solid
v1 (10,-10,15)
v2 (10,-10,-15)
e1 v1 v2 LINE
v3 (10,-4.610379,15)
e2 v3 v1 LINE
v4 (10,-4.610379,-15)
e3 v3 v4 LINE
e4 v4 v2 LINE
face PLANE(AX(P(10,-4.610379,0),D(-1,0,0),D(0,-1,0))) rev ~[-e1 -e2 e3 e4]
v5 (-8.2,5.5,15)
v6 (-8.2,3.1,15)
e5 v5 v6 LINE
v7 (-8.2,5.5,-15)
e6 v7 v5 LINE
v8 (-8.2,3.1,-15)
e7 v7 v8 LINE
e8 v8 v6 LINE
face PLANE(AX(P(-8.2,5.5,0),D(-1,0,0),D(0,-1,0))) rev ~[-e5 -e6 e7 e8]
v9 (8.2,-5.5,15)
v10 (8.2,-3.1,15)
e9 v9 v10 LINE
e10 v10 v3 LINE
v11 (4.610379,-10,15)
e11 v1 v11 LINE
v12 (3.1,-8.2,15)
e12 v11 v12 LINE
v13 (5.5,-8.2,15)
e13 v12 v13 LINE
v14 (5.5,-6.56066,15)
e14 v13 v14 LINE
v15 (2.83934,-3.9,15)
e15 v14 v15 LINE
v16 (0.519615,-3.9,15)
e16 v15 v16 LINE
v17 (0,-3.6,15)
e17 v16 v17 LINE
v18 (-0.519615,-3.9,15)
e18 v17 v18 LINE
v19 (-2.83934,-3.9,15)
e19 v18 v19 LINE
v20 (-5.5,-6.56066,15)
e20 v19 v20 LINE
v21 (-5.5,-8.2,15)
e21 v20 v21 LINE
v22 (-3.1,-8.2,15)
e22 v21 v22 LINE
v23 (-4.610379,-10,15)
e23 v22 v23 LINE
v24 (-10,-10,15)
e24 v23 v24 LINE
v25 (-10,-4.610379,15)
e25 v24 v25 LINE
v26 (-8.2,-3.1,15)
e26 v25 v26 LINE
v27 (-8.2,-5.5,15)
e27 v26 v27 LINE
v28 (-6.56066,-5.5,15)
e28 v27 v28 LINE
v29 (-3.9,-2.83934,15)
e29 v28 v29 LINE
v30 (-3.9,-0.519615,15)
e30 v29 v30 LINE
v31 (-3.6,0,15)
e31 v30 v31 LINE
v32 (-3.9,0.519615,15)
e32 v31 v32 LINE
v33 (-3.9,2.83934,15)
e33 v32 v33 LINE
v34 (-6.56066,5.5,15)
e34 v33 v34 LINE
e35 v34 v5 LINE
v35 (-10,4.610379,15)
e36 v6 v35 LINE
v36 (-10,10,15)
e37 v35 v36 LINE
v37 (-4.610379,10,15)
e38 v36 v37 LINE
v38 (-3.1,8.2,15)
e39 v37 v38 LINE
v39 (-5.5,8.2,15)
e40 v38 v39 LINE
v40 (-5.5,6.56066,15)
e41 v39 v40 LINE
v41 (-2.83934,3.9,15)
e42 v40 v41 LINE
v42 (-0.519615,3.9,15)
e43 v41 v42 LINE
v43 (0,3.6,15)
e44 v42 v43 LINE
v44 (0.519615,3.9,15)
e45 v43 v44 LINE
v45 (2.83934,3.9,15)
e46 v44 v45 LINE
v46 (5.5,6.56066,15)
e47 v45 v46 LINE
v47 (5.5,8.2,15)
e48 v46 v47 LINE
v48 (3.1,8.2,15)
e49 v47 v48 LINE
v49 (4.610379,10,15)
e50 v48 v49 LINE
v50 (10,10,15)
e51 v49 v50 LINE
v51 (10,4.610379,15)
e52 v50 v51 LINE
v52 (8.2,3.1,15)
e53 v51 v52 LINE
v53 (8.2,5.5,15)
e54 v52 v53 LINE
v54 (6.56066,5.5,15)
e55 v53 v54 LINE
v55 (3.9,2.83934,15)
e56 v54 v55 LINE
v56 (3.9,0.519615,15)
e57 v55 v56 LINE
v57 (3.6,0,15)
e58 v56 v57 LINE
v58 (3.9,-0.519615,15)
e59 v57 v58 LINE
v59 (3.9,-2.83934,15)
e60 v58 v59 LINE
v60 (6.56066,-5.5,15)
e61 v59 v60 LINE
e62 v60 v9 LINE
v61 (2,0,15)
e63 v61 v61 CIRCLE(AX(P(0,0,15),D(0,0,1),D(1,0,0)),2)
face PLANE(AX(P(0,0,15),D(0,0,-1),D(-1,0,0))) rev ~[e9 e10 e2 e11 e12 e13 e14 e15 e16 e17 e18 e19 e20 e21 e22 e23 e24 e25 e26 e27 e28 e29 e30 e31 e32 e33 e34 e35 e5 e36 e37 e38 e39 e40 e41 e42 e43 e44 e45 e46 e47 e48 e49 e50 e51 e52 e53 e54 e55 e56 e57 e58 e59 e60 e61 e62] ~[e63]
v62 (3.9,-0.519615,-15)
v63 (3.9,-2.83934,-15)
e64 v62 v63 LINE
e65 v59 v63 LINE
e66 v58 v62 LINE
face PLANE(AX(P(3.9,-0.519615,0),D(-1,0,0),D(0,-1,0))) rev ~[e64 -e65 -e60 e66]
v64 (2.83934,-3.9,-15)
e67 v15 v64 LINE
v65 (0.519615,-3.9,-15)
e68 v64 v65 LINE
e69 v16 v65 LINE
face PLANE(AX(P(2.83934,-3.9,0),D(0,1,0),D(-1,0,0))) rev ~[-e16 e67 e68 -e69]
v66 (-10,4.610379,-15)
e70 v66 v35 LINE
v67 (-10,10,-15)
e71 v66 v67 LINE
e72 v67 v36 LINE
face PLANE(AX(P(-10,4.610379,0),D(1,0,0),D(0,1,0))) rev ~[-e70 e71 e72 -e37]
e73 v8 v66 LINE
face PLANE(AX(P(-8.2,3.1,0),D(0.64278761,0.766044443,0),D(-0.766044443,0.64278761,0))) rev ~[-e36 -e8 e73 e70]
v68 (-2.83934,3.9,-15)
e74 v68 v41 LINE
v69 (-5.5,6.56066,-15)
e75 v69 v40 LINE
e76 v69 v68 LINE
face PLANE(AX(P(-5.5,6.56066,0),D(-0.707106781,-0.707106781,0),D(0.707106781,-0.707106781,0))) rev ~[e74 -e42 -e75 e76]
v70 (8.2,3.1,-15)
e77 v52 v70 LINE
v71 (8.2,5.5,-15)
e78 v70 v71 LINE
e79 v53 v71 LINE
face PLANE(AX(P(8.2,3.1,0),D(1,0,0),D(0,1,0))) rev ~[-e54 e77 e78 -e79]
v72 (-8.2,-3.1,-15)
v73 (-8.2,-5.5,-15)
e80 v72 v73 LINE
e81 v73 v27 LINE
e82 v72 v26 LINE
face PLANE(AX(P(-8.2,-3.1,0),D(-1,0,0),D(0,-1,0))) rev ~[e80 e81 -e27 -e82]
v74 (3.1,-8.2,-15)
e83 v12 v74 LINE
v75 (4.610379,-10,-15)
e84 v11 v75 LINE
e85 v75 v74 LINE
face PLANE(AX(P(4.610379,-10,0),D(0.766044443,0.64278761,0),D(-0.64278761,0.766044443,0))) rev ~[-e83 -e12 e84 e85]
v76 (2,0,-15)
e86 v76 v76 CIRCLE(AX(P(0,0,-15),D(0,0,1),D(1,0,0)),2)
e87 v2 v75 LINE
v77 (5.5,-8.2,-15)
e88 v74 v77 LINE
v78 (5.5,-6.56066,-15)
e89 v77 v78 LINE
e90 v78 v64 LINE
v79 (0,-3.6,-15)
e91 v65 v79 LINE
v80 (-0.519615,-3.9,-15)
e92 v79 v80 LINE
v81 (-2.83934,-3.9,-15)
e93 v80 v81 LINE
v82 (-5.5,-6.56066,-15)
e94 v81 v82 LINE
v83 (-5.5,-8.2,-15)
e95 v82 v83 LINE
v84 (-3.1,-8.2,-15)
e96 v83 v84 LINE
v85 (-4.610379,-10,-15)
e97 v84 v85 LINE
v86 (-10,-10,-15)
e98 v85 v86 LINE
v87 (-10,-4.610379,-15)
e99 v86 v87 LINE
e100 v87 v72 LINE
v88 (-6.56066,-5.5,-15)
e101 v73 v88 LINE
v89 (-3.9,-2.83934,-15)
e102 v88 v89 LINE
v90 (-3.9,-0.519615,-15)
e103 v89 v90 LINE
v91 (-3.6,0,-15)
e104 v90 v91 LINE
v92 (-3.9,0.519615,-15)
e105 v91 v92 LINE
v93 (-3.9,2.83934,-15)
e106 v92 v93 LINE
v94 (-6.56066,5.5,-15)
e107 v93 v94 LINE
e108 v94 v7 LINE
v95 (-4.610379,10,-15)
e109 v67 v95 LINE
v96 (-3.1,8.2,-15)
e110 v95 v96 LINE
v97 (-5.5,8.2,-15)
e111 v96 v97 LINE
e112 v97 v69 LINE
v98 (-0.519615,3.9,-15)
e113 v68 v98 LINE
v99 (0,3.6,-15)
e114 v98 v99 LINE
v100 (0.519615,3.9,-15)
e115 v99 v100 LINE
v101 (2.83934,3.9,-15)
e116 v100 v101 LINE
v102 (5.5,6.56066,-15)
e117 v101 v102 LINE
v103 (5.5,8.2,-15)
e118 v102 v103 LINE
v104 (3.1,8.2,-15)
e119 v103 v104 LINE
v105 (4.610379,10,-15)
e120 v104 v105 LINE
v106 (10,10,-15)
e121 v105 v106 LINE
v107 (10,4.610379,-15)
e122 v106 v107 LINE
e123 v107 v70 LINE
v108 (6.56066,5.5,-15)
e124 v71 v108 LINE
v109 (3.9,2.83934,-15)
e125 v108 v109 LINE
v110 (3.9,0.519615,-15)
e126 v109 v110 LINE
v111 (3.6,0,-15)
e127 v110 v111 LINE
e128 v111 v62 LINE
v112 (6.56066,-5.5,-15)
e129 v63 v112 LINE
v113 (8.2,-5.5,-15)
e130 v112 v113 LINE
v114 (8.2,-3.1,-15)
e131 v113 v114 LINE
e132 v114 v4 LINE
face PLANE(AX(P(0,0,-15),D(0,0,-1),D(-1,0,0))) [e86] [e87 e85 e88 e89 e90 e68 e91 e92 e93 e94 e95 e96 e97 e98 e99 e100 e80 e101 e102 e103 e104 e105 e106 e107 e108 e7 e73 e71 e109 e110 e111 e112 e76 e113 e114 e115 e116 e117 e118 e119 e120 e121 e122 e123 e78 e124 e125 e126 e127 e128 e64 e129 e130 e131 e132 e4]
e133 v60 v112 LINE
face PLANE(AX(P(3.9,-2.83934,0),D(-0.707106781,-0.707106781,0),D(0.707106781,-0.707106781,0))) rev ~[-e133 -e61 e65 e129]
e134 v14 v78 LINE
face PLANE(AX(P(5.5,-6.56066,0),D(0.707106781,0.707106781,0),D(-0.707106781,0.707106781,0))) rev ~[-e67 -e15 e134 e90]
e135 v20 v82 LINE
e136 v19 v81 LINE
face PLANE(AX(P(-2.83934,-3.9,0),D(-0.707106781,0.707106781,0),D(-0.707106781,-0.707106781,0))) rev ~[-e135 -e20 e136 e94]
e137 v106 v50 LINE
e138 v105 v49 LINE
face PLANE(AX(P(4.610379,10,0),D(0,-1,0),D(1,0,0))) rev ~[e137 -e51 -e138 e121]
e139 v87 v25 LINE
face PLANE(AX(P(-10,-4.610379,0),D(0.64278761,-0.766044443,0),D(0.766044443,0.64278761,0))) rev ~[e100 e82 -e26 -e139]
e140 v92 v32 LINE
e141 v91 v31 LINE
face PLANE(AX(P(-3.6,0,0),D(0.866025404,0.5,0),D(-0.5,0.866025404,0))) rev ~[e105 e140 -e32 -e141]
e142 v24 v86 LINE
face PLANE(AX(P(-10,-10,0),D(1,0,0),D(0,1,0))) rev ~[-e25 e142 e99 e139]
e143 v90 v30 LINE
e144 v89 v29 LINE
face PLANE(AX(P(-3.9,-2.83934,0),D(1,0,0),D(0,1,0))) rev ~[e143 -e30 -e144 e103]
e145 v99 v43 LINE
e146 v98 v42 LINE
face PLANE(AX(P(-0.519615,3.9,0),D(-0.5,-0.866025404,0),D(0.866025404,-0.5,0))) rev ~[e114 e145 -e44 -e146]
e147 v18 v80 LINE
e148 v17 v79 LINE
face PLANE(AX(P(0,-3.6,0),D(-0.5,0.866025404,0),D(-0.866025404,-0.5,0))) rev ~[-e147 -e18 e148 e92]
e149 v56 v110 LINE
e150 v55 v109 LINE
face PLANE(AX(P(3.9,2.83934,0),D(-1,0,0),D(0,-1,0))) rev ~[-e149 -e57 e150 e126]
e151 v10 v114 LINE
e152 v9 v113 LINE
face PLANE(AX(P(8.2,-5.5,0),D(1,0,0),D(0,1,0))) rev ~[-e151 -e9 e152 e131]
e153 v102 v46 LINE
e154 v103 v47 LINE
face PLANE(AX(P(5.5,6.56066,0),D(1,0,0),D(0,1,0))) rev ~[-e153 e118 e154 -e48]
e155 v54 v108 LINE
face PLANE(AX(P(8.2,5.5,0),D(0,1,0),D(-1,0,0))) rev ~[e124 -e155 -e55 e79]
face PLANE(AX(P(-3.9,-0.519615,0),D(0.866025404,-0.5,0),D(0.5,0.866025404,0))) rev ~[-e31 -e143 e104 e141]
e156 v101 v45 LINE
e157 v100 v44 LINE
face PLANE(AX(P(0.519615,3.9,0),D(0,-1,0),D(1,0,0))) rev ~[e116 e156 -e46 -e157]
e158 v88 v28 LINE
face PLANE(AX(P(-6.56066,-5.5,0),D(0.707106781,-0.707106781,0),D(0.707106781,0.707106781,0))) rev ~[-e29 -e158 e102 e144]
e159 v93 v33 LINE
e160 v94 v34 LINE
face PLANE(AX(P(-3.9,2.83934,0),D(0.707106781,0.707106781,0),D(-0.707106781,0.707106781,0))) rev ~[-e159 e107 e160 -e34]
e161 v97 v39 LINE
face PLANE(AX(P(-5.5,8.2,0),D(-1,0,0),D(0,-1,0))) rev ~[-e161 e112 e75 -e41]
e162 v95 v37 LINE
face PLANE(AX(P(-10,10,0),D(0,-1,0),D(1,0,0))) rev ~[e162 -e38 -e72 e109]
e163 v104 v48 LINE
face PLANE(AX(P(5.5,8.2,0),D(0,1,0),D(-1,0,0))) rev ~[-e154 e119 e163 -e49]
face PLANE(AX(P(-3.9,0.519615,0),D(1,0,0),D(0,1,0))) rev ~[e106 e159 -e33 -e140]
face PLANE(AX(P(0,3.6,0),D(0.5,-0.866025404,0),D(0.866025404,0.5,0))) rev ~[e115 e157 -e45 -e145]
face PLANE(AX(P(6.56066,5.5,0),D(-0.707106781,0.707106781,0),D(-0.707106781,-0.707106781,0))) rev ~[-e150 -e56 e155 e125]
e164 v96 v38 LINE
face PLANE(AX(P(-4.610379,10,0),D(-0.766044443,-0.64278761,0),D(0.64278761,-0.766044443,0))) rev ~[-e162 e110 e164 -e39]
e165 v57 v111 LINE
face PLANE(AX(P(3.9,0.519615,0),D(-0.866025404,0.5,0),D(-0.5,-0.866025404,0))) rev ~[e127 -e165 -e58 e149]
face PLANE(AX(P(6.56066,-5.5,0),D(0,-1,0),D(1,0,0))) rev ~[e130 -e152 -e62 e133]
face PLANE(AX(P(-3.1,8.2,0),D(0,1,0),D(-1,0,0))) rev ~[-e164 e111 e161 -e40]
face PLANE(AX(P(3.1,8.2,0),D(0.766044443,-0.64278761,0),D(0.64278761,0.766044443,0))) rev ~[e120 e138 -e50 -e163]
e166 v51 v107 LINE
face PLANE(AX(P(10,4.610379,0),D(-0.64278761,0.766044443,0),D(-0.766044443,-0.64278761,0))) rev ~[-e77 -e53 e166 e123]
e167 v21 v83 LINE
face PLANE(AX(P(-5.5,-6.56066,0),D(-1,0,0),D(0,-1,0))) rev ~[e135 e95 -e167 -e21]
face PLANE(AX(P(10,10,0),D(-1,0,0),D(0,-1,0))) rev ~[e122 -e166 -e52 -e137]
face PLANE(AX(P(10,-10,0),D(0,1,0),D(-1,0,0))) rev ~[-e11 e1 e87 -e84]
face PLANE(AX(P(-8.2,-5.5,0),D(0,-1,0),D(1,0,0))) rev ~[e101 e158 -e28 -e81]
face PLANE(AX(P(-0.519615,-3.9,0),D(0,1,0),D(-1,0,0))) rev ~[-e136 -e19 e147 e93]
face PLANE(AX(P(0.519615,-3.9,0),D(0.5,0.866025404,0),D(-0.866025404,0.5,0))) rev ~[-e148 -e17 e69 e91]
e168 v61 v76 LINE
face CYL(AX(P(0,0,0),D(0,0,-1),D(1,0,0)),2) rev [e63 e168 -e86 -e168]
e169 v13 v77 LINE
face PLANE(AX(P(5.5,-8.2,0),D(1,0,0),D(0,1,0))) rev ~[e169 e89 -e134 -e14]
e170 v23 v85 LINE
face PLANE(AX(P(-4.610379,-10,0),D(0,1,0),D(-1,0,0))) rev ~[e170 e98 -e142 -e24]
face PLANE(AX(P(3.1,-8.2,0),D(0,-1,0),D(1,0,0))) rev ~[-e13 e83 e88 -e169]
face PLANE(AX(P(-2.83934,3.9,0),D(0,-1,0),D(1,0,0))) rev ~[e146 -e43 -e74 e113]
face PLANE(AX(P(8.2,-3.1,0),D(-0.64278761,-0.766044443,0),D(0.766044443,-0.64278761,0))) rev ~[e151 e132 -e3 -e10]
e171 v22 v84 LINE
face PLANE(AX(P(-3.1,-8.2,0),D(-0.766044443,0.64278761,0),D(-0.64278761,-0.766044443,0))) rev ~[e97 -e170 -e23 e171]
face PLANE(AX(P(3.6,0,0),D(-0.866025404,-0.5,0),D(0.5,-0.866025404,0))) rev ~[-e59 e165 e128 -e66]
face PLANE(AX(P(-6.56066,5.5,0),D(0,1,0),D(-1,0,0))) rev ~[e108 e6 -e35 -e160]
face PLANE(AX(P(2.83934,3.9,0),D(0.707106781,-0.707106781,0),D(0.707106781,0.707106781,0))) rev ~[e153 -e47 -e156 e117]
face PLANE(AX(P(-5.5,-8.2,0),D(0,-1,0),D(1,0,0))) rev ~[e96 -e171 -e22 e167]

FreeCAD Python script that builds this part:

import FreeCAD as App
import Part
import Sketcher
from FreeCAD import Vector
Q = App.Units.Quantity


def add_polygon(sketch, points):
    """Adds a closed chain of lines whose ends are joined by coincident constraints."""
    first, n = sketch.GeometryCount, len(points)
    for a, b in zip(points, points[1:] + points[:1]):
        sketch.addGeometry(Part.LineSegment(App.Vector(*a, 0), App.Vector(*b, 0)), False)
    for i in range(n):
        sketch.addConstraint(Sketcher.Constraint("Coincident", first + i, 2, first + (i + 1) % n, 1))

doc = App.newDocument("Part")
body = doc.addObject("PartDesign::Body", "Body")

sketch1 = doc.addObject("Sketcher::SketchObject", "Sketch")
body.addObject(sketch1)
sketch1.AttachmentSupport = (doc.XY_Plane, [""])
sketch1.MapMode = "FlatFace"
add_polygon(sketch1, [(10, 4.6), (10, 10), (4.6, 10), (3.1, 8.2), (5.5, 8.2), (5.5, 6.6), (2.8, 3.9), (0.5, 3.9), (0, 3.6), (-0.5, 3.9), (-2.8, 3.9), (-5.5, 6.6), (-5.5, 8.2), (-3.1, 8.2), (-4.6, 10), (-10, 10), (-10, 4.6), (-8.2, 3.1), (-8.2, 5.5), (-6.6, 5.5), (-3.9, 2.8), (-3.9, 0.5), (-3.6, 0), (-3.9, -0.5), (-3.9, -2.8), (-6.6, -5.5), (-8.2, -5.5), (-8.2, -3.1), (-10, -4.6), (-10, -10), (-4.6, -10), (-3.1, -8.2), (-5.5, -8.2), (-5.5, -6.6), (-2.8, -3.9), (-0.5, -3.9), (0, -3.6), (0.5, -3.9), (2.8, -3.9), (5.5, -6.6), (5.5, -8.2), (3.1, -8.2), (4.6, -10), (10, -10), (10, -4.6), (8.2, -3.1), (8.2, -5.5), (6.6, -5.5), (3.9, -2.8), (3.9, -0.5), (3.6, 0), (3.9, 0.5), (3.9, 2.8), (6.6, 5.5), (8.2, 5.5), (8.2, 3.1)])
sketch1.addGeometry(Part.Circle(Vector(0, 0, 0), Vector(0, 0, 1), 2), False)
sketch1.addConstraint([
    Sketcher.Constraint("Vertical", 0),
    Sketcher.Constraint("Horizontal", 1),
    Sketcher.Constraint("Horizontal", 3),
    Sketcher.Constraint("Vertical", 4),
    Sketcher.Constraint("Horizontal", 6),
    Sketcher.Constraint("Horizontal", 9),
    Sketcher.Constraint("Vertical", 11),
    Sketcher.Constraint("Horizontal", 12),
    Sketcher.Constraint("Horizontal", 14),
    Sketcher.Constraint("Vertical", 15),
    Sketcher.Constraint("Vertical", 17),
    Sketcher.Constraint("Horizontal", 18),
    Sketcher.Constraint("Vertical", 20),
    Sketcher.Constraint("Vertical", 23),
    Sketcher.Constraint("Horizontal", 25),
    Sketcher.Constraint("Vertical", 26),
    Sketcher.Constraint("Vertical", 28),
    Sketcher.Constraint("Horizontal", 29),
    Sketcher.Constraint("Horizontal", 31),
    Sketcher.Constraint("Vertical", 32),
    Sketcher.Constraint("Horizontal", 34),
    Sketcher.Constraint("Horizontal", 37),
    Sketcher.Constraint("Vertical", 39),
    Sketcher.Constraint("Horizontal", 40),
    Sketcher.Constraint("Horizontal", 42),
    Sketcher.Constraint("Vertical", 43),
    Sketcher.Constraint("Vertical", 45),
    Sketcher.Constraint("Horizontal", 46),
    Sketcher.Constraint("Vertical", 48),
    Sketcher.Constraint("Vertical", 51),
    Sketcher.Constraint("Horizontal", 53),
    Sketcher.Constraint("Vertical", 54),
    Sketcher.Constraint("Coincident", 56, 3, -1, 1),
    Sketcher.Constraint("Symmetric", 0, 2, 28, 2, -1, 1),
    Sketcher.Constraint("Symmetric", 2, 2, 30, 2, -1, 1),
    Sketcher.Constraint("Symmetric", 4, 2, 32, 2, -1, 1),
    Sketcher.Constraint("Symmetric", 5, 2, 33, 2, -1, 1),
    Sketcher.Constraint("Symmetric", 7, 2, 35, 2, -1, 1),
    Sketcher.Constraint("Symmetric", 8, 2, 36, 2, -1, 1),
    Sketcher.Constraint("Symmetric", 10, 2, 38, 2, -1, 1),
    Sketcher.Constraint("Symmetric", 12, 2, 40, 2, -1, 1),
    Sketcher.Constraint("Symmetric", 13, 2, 41, 2, -1, 1),
    Sketcher.Constraint("Symmetric", 15, 2, 43, 2, -1, 1),
    Sketcher.Constraint("Symmetric", 16, 2, 44, 2, -1, 1),
    Sketcher.Constraint("Symmetric", 18, 2, 46, 2, -1, 1),
    Sketcher.Constraint("Symmetric", 19, 2, 47, 2, -1, 1),
    Sketcher.Constraint("Symmetric", 21, 2, 49, 2, -1, 1),
    Sketcher.Constraint("Symmetric", 22, 2, 50, 2, -1, 1),
    Sketcher.Constraint("Symmetric", 24, 2, 52, 2, -1, 1),
    Sketcher.Constraint("Symmetric", 26, 2, 54, 2, -1, 1),
    Sketcher.Constraint("Symmetric", 6, 2, 8, 2, -2),
    Sketcher.Constraint("Symmetric", 4, 2, 10, 2, -2),
    Sketcher.Constraint("Symmetric", 2, 2, 12, 2, -2),
    Sketcher.Constraint("Symmetric", 1, 2, 13, 2, -2),
    Sketcher.Constraint("Symmetric", 27, 2, 43, 2, -2),
    Sketcher.Constraint("Symmetric", 26, 2, 44, 2, -2),
    Sketcher.Constraint("Symmetric", 24, 2, 46, 2, -2),
    Sketcher.Constraint("Symmetric", 23, 2, 47, 2, -2),
    Sketcher.Constraint("PointOnObject", 7, 2, -2),
    Sketcher.Constraint("PointOnObject", 21, 2, -1),
    Sketcher.Constraint("Perpendicular", 5, 10),
    Sketcher.Constraint("Perpendicular", 2, 16),
    Sketcher.Constraint("Parallel", 10, 19),
    Sketcher.Constraint("Perpendicular", 7, 21),
    Sketcher.Constraint("Perpendicular", 8, 22),
    Sketcher.Constraint("Perpendicular", 19, 24),
    Sketcher.Constraint("Perpendicular", 16, 30),
    Sketcher.Constraint("Perpendicular", 21, 35),
    Sketcher.Constraint("Perpendicular", 33, 38),
    Sketcher.Constraint("Perpendicular", 35, 49),
    Sketcher.Constraint("Perpendicular", 47, 52),
    Sketcher.Constraint("Perpendicular", 41, 55),
    Sketcher.Constraint("Equal", 42, 0),
    Sketcher.Constraint("Equal", 53, 4),
    Sketcher.Constraint("Equal", 40, 17),
    Sketcher.Constraint("Equal", 37, 20),
    Sketcher.Constraint("Equal", 13, 16),
    Sketcher.Constraint("Equal", 10, 19),
    Sketcher.Constraint("Equal", 8, 21),
    Sketcher.Constraint("Diameter", 56, 4.0),
    Sketcher.Constraint("Angle", 2, Q("-130 deg")),
    Sketcher.Constraint("Angle", 7, Q("-150 deg")),
    Sketcher.Constraint("DistanceX", 3, 1, 3, 2, 2.4),
    Sketcher.Constraint("DistanceX", -1, 1, 0, 2, 10.0),
    Sketcher.Constraint("Distance", 7, 0.6),
    Sketcher.Constraint("DistanceX", -1, 1, 2, 2, 3.1),
    Sketcher.Constraint("DistanceY", -1, 1, 2, 2, 8.2),
    Sketcher.Constraint("DistanceY", -1, 1, 5, 2, 3.9),
    Sketcher.Constraint("DistanceX", 18, 1, 18, 2, 1.63934),
])
pad1 = doc.addObject("PartDesign::Pad", "Pad")
body.addObject(pad1)
pad1.Profile = sketch1
pad1.Length = 30
pad1.Midplane = True

doc.recompute()
